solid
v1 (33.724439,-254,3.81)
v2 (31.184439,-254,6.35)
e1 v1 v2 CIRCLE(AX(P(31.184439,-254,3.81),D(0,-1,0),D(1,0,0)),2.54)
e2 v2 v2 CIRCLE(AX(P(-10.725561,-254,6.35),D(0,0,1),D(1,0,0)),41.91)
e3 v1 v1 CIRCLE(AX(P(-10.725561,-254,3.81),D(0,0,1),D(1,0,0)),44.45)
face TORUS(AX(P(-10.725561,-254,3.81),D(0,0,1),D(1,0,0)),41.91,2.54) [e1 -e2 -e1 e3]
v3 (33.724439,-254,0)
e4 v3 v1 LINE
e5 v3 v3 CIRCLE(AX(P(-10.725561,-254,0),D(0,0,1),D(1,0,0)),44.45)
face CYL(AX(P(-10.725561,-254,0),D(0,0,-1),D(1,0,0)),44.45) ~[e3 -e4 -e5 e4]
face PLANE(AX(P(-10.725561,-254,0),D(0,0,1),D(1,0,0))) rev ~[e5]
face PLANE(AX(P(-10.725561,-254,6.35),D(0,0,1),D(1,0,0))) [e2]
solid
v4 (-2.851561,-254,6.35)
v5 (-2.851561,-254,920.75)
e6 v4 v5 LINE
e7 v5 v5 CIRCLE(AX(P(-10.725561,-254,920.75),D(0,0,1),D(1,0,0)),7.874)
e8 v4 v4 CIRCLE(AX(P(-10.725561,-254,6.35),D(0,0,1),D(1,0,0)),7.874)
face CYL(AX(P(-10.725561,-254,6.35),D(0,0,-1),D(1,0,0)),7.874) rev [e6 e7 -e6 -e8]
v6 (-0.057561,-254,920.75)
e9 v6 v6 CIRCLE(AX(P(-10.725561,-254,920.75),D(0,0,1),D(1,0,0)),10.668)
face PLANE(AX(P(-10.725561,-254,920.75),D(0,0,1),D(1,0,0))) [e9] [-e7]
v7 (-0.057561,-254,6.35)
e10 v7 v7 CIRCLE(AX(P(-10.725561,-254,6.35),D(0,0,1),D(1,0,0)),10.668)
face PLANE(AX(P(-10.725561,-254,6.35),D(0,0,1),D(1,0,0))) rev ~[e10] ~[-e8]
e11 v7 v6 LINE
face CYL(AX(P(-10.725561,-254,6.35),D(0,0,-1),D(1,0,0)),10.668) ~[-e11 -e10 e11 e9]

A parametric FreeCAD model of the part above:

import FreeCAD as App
import Part
import Sketcher

V = App.Vector
Q = App.Units.Quantity


def edges_at(feature, points):
    """Names of the edges that pass closest to the given points."""
    edges = feature.Shape.Edges
    near = lambda p: min(range(len(edges)), key=lambda i: edges[i].distToShape(Part.Vertex(*p))[0])
    return sorted({f"Edge{near(p) + 1}" for p in points})

doc = App.newDocument("Part")
params = doc.addObject("Spreadsheet::Sheet", "Params")
for row, (alias, value) in enumerate([
    ("sketch1_diameter", "3.5 in"),
    ("pad1_length", "0.25 in"),
    ("fillet_radius", "0.1 in"),
    ("sketch2_diameter", "0.84 in"),
    ("sketch2_diameter2", "0.62 in"),
    ("pad2_length", "36 in"),
], start=1):
    params.set(f"A{row}", alias)
    params.set(f"B{row}", "=" + value)
    params.setAlias(f"B{row}", alias)

body = doc.addObject("PartDesign::Body", "Body")

sketch1 = body.newObject("Sketcher::SketchObject", "Sketch")
sketch1.AttachmentSupport = (doc.getObject("XY_Plane"), [""])
sketch1.MapMode = "FlatFace"
sketch1.addGeometry(Part.Circle(V(-11, -254, 0), V(0, 0, 1), 44), False)
sketch1.addConstraint(Sketcher.Constraint("Diameter", 0, Q("3.5 in")))
sketch1.addConstraint(Sketcher.Constraint("DistanceY", 0, 3, -1, 1, Q("10 in")))
sketch1.addConstraint(Sketcher.Constraint("DistanceX", 0, 3, -1, 1, Q("10.725561 mm")))
sketch1.setExpression("Constraints[0]", "Params.sketch1_diameter")
pad1 = body.newObject("PartDesign::Pad", "Pad")
pad1.Profile = sketch1
pad1.setExpression("Length", "Params.pad1_length")
doc.recompute()

fillet = body.newObject("PartDesign::Fillet", "Fillet")
fillet.Base = (pad1, edges_at(pad1, [(-55.176, -254, 6.35)]))
fillet.setExpression("Radius", "Params.fillet_radius")
body2 = doc.addObject("PartDesign::Body", "Body001")

sketch2 = body2.newObject("Sketcher::SketchObject", "Sketch001")
sketch2.AttachmentSupport = (doc.getObject("XY_Plane001"), [""])
sketch2.MapMode = "FlatFace"
sketch2.AttachmentOffset = App.Placement(V(0, 0, 0.25 * 25.4), App.Rotation())
sketch2.addGeometry(Part.Circle(V(-11, -254, 0), V(0, 0, 1), 11), False)
sketch2.addGeometry(Part.Circle(V(-11, -254, 0), V(0, 0, 1), 8), False)
sketch2.addConstraint(Sketcher.Constraint("Coincident", 1, 3, 0, 3))
sketch2.addConstraint(Sketcher.Constraint("Diameter", 0, Q("0.84 in")))
sketch2.addConstraint(Sketcher.Constraint("Diameter", 1, Q("0.62 in")))
sketch2.addConstraint(Sketcher.Constraint("DistanceY", 0, 3, -1, 1, Q("10 in")))
sketch2.addConstraint(Sketcher.Constraint("DistanceX", 0, 3, -1, 1, Q("10.725561 mm")))
sketch2.setExpression("Constraints[1]", "Params.sketch2_diameter")
sketch2.setExpression("Constraints[2]", "Params.sketch2_diameter2")
pad2 = body2.newObject("PartDesign::Pad", "Pad001")
pad2.Profile = sketch2
pad2.setExpression("Length", "Params.pad2_length")

doc.recompute()
